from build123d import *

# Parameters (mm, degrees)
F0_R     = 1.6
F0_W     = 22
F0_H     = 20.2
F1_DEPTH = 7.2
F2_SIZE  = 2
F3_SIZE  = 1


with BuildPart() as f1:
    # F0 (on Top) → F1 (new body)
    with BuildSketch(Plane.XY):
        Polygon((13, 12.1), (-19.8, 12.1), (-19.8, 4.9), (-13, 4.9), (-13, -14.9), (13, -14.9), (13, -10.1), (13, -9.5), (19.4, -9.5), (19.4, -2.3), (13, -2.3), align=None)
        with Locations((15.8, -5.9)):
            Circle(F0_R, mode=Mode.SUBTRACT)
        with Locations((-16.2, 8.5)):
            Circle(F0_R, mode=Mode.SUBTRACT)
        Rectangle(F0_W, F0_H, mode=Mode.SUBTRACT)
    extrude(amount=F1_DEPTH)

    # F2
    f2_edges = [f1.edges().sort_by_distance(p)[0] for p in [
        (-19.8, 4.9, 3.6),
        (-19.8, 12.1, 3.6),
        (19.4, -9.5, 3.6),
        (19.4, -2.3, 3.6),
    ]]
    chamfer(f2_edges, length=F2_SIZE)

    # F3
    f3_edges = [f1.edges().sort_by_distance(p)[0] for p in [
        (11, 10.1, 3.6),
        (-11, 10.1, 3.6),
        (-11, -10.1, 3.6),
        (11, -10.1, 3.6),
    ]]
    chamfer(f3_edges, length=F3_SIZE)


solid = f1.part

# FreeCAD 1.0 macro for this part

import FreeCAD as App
import Part
import Sketcher

V = App.Vector
Q = App.Units.Quantity


def edges_at(feature, points):
    """Names of the edges that pass closest to the given points."""
    edges = feature.Shape.Edges
    near = lambda p: min(range(len(edges)), key=lambda i: edges[i].distToShape(Part.Vertex(*p))[0])
    return sorted({f"Edge{near(p) + 1}" for p in points})


def add_polygon(sketch, points):
    """Adds a closed chain of lines whose ends are joined by coincident constraints."""
    first, n = sketch.GeometryCount, len(points)
    for a, b in zip(points, points[1:] + points[:1]):
        sketch.addGeometry(Part.LineSegment(App.Vector(*a, 0), App.Vector(*b, 0)), False)
    for i in range(n):
        sketch.addConstraint(Sketcher.Constraint("Coincident", first + i, 2, first + (i + 1) % n, 1))

doc = App.newDocument("Part")
params = doc.addObject("Spreadsheet::Sheet", "Params")
for row, (alias, value) in enumerate([
    ("sketch1_diameter", "3.2 mm"),
    ("sketch1_width", "26 mm"),
    ("sketch1_width2", "22 mm"),
    ("sketch1_width3", "32.8 mm"),
    ("sketch1_width4", "6.4 mm"),
    ("pad1_length", "7.2 mm"),
    ("chamfer_size", "2 mm"),
    ("chamfer2_size", "1 mm"),
], start=1):
    params.set(f"A{row}", alias)
    params.set(f"B{row}", "=" + value)
    params.setAlias(f"B{row}", alias)

body = doc.addObject("PartDesign::Body", "Body")

sketch1 = doc.addObject("Sketcher::SketchObject", "Sketch")
body.addObject(sketch1)
sketch1.AttachmentSupport = (doc.XY_Plane, [""])
sketch1.MapMode = "FlatFace"
add_polygon(sketch1, [(13, 12.1), (-19.8, 12.1), (-19.8, 4.9), (-13, 4.9), (-13, -14.9), (13, -14.9), (13, -9.5), (19.4, -9.5), (19.4, -2.3), (13, -2.3)])
sketch1.addGeometry(Part.Circle(V(15.8, -5.9, 0), V(0, 0, 1), 1.6), False)
add_polygon(sketch1, [(11, -10.1), (-11, -10.1), (-11, 10.1), (11, 10.1)])
sketch1.addGeometry(Part.Circle(V(-16.2, 8.5, 0), V(0, 0, 1), 1.6), False)
sketch1.addConstraint(Sketcher.Constraint("Horizontal", 0))
sketch1.addConstraint(Sketcher.Constraint("Vertical", 1))
sketch1.addConstraint(Sketcher.Constraint("Horizontal", 2))
sketch1.addConstraint(Sketcher.Constraint("Vertical", 3))
sketch1.addConstraint(Sketcher.Constraint("Horizontal", 4))
sketch1.addConstraint(Sketcher.Constraint("Vertical", 5))
sketch1.addConstraint(Sketcher.Constraint("Horizontal", 6))
sketch1.addConstraint(Sketcher.Constraint("Vertical", 7))
sketch1.addConstraint(Sketcher.Constraint("Horizontal", 8))
sketch1.addConstraint(Sketcher.Constraint("Vertical", 9))
sketch1.addConstraint(Sketcher.Constraint("Horizontal", 11))
sketch1.addConstraint(Sketcher.Constraint("Vertical", 12))
sketch1.addConstraint(Sketcher.Constraint("Horizontal", 13))
sketch1.addConstraint(Sketcher.Constraint("Vertical", 14))
sketch1.addConstraint(Sketcher.Constraint("Equal", 10, 15))
sketch1.addConstraint(Sketcher.Constraint("Symmetric", 11, 2, 13, 2, -1, 1))
sketch1.addConstraint(Sketcher.Constraint("Vertical", 5, 2, 8, 2))
sketch1.addConstraint(Sketcher.Constraint("Equal", 1, 7))
sketch1.addConstraint(Sketcher.Constraint("Diameter", 10, Q("3.2 mm")))
sketch1.addConstraint(Sketcher.Constraint("DistanceX", 4, 1, 4, 2, Q("26 mm")))
sketch1.addConstraint(Sketcher.Constraint("DistanceX", 11, 2, 11, 1, Q("22 mm")))
sketch1.addConstraint(Sketcher.Constraint("DistanceX", 0, 2, 0, 1, Q("32.8 mm")))
sketch1.addConstraint(Sketcher.Constraint("DistanceX", 6, 1, 6, 2, Q("6.4 mm")))
sketch1.addConstraint(Sketcher.Constraint("DistanceY", 1, 2, 1, 1, Q("7.2 mm")))
sketch1.addConstraint(Sketcher.Constraint("DistanceY", 3, 2, 3, 1, Q("19.8 mm")))
sketch1.addConstraint(Sketcher.Constraint("DistanceY", 5, 1, 5, 2, Q("5.4 mm")))
sketch1.addConstraint(Sketcher.Constraint("DistanceY", 12, 1, 12, 2, Q("20.2 mm")))
sketch1.addConstraint(Sketcher.Constraint("DistanceX", 2, 2, -1, 1, Q("13 mm")))
sketch1.addConstraint(Sketcher.Constraint("DistanceX", 15, 3, 10, 3, Q("32 mm")))
sketch1.addConstraint(Sketcher.Constraint("DistanceY", 10, 3, 0, 2, Q("18 mm")))
sketch1.addConstraint(Sketcher.Constraint("DistanceY", 5, 2, 15, 3, Q("18 mm")))
sketch1.addConstraint(Sketcher.Constraint("DistanceY", 11, 2, 2, 2, Q("15 mm")))
sketch1.addConstraint(Sketcher.Constraint("DistanceX", -1, 1, 10, 3, Q("15.8 mm")))
sketch1.setExpression("Constraints[32]", "Params.sketch1_diameter")
sketch1.setExpression("Constraints[33]", "Params.sketch1_width")
sketch1.setExpression("Constraints[34]", "Params.sketch1_width2")
sketch1.setExpression("Constraints[35]", "Params.sketch1_width3")
sketch1.setExpression("Constraints[36]", "Params.sketch1_width4")
pad1 = doc.addObject("PartDesign::Pad", "Pad")
body.addObject(pad1)
pad1.Profile = sketch1
pad1.setExpression("Length", "Params.pad1_length")
doc.recompute()

chamfer = doc.addObject("PartDesign::Chamfer", "Chamfer")
body.addObject(chamfer)
chamfer.Base = (pad1, edges_at(pad1, [
    (-19.8, 4.9, 3.6),
    (-19.8, 12.1, 3.6),
    (19.4, -9.5, 3.6),
    (19.4, -2.3, 3.6),
]))
chamfer.setExpression("Size", "Params.chamfer_size")
doc.recompute()

chamfer2 = doc.addObject("PartDesign::Chamfer", "Chamfer001")
body.addObject(chamfer2)
chamfer2.Base = (chamfer, edges_at(chamfer, [
    (11, 10.1, 3.6),
    (-11, 10.1, 3.6),
    (-11, -10.1, 3.6),
    (11, -10.1, 3.6),
]))
chamfer2.setExpression("Size", "Params.chamfer2_size")

doc.recompute()
